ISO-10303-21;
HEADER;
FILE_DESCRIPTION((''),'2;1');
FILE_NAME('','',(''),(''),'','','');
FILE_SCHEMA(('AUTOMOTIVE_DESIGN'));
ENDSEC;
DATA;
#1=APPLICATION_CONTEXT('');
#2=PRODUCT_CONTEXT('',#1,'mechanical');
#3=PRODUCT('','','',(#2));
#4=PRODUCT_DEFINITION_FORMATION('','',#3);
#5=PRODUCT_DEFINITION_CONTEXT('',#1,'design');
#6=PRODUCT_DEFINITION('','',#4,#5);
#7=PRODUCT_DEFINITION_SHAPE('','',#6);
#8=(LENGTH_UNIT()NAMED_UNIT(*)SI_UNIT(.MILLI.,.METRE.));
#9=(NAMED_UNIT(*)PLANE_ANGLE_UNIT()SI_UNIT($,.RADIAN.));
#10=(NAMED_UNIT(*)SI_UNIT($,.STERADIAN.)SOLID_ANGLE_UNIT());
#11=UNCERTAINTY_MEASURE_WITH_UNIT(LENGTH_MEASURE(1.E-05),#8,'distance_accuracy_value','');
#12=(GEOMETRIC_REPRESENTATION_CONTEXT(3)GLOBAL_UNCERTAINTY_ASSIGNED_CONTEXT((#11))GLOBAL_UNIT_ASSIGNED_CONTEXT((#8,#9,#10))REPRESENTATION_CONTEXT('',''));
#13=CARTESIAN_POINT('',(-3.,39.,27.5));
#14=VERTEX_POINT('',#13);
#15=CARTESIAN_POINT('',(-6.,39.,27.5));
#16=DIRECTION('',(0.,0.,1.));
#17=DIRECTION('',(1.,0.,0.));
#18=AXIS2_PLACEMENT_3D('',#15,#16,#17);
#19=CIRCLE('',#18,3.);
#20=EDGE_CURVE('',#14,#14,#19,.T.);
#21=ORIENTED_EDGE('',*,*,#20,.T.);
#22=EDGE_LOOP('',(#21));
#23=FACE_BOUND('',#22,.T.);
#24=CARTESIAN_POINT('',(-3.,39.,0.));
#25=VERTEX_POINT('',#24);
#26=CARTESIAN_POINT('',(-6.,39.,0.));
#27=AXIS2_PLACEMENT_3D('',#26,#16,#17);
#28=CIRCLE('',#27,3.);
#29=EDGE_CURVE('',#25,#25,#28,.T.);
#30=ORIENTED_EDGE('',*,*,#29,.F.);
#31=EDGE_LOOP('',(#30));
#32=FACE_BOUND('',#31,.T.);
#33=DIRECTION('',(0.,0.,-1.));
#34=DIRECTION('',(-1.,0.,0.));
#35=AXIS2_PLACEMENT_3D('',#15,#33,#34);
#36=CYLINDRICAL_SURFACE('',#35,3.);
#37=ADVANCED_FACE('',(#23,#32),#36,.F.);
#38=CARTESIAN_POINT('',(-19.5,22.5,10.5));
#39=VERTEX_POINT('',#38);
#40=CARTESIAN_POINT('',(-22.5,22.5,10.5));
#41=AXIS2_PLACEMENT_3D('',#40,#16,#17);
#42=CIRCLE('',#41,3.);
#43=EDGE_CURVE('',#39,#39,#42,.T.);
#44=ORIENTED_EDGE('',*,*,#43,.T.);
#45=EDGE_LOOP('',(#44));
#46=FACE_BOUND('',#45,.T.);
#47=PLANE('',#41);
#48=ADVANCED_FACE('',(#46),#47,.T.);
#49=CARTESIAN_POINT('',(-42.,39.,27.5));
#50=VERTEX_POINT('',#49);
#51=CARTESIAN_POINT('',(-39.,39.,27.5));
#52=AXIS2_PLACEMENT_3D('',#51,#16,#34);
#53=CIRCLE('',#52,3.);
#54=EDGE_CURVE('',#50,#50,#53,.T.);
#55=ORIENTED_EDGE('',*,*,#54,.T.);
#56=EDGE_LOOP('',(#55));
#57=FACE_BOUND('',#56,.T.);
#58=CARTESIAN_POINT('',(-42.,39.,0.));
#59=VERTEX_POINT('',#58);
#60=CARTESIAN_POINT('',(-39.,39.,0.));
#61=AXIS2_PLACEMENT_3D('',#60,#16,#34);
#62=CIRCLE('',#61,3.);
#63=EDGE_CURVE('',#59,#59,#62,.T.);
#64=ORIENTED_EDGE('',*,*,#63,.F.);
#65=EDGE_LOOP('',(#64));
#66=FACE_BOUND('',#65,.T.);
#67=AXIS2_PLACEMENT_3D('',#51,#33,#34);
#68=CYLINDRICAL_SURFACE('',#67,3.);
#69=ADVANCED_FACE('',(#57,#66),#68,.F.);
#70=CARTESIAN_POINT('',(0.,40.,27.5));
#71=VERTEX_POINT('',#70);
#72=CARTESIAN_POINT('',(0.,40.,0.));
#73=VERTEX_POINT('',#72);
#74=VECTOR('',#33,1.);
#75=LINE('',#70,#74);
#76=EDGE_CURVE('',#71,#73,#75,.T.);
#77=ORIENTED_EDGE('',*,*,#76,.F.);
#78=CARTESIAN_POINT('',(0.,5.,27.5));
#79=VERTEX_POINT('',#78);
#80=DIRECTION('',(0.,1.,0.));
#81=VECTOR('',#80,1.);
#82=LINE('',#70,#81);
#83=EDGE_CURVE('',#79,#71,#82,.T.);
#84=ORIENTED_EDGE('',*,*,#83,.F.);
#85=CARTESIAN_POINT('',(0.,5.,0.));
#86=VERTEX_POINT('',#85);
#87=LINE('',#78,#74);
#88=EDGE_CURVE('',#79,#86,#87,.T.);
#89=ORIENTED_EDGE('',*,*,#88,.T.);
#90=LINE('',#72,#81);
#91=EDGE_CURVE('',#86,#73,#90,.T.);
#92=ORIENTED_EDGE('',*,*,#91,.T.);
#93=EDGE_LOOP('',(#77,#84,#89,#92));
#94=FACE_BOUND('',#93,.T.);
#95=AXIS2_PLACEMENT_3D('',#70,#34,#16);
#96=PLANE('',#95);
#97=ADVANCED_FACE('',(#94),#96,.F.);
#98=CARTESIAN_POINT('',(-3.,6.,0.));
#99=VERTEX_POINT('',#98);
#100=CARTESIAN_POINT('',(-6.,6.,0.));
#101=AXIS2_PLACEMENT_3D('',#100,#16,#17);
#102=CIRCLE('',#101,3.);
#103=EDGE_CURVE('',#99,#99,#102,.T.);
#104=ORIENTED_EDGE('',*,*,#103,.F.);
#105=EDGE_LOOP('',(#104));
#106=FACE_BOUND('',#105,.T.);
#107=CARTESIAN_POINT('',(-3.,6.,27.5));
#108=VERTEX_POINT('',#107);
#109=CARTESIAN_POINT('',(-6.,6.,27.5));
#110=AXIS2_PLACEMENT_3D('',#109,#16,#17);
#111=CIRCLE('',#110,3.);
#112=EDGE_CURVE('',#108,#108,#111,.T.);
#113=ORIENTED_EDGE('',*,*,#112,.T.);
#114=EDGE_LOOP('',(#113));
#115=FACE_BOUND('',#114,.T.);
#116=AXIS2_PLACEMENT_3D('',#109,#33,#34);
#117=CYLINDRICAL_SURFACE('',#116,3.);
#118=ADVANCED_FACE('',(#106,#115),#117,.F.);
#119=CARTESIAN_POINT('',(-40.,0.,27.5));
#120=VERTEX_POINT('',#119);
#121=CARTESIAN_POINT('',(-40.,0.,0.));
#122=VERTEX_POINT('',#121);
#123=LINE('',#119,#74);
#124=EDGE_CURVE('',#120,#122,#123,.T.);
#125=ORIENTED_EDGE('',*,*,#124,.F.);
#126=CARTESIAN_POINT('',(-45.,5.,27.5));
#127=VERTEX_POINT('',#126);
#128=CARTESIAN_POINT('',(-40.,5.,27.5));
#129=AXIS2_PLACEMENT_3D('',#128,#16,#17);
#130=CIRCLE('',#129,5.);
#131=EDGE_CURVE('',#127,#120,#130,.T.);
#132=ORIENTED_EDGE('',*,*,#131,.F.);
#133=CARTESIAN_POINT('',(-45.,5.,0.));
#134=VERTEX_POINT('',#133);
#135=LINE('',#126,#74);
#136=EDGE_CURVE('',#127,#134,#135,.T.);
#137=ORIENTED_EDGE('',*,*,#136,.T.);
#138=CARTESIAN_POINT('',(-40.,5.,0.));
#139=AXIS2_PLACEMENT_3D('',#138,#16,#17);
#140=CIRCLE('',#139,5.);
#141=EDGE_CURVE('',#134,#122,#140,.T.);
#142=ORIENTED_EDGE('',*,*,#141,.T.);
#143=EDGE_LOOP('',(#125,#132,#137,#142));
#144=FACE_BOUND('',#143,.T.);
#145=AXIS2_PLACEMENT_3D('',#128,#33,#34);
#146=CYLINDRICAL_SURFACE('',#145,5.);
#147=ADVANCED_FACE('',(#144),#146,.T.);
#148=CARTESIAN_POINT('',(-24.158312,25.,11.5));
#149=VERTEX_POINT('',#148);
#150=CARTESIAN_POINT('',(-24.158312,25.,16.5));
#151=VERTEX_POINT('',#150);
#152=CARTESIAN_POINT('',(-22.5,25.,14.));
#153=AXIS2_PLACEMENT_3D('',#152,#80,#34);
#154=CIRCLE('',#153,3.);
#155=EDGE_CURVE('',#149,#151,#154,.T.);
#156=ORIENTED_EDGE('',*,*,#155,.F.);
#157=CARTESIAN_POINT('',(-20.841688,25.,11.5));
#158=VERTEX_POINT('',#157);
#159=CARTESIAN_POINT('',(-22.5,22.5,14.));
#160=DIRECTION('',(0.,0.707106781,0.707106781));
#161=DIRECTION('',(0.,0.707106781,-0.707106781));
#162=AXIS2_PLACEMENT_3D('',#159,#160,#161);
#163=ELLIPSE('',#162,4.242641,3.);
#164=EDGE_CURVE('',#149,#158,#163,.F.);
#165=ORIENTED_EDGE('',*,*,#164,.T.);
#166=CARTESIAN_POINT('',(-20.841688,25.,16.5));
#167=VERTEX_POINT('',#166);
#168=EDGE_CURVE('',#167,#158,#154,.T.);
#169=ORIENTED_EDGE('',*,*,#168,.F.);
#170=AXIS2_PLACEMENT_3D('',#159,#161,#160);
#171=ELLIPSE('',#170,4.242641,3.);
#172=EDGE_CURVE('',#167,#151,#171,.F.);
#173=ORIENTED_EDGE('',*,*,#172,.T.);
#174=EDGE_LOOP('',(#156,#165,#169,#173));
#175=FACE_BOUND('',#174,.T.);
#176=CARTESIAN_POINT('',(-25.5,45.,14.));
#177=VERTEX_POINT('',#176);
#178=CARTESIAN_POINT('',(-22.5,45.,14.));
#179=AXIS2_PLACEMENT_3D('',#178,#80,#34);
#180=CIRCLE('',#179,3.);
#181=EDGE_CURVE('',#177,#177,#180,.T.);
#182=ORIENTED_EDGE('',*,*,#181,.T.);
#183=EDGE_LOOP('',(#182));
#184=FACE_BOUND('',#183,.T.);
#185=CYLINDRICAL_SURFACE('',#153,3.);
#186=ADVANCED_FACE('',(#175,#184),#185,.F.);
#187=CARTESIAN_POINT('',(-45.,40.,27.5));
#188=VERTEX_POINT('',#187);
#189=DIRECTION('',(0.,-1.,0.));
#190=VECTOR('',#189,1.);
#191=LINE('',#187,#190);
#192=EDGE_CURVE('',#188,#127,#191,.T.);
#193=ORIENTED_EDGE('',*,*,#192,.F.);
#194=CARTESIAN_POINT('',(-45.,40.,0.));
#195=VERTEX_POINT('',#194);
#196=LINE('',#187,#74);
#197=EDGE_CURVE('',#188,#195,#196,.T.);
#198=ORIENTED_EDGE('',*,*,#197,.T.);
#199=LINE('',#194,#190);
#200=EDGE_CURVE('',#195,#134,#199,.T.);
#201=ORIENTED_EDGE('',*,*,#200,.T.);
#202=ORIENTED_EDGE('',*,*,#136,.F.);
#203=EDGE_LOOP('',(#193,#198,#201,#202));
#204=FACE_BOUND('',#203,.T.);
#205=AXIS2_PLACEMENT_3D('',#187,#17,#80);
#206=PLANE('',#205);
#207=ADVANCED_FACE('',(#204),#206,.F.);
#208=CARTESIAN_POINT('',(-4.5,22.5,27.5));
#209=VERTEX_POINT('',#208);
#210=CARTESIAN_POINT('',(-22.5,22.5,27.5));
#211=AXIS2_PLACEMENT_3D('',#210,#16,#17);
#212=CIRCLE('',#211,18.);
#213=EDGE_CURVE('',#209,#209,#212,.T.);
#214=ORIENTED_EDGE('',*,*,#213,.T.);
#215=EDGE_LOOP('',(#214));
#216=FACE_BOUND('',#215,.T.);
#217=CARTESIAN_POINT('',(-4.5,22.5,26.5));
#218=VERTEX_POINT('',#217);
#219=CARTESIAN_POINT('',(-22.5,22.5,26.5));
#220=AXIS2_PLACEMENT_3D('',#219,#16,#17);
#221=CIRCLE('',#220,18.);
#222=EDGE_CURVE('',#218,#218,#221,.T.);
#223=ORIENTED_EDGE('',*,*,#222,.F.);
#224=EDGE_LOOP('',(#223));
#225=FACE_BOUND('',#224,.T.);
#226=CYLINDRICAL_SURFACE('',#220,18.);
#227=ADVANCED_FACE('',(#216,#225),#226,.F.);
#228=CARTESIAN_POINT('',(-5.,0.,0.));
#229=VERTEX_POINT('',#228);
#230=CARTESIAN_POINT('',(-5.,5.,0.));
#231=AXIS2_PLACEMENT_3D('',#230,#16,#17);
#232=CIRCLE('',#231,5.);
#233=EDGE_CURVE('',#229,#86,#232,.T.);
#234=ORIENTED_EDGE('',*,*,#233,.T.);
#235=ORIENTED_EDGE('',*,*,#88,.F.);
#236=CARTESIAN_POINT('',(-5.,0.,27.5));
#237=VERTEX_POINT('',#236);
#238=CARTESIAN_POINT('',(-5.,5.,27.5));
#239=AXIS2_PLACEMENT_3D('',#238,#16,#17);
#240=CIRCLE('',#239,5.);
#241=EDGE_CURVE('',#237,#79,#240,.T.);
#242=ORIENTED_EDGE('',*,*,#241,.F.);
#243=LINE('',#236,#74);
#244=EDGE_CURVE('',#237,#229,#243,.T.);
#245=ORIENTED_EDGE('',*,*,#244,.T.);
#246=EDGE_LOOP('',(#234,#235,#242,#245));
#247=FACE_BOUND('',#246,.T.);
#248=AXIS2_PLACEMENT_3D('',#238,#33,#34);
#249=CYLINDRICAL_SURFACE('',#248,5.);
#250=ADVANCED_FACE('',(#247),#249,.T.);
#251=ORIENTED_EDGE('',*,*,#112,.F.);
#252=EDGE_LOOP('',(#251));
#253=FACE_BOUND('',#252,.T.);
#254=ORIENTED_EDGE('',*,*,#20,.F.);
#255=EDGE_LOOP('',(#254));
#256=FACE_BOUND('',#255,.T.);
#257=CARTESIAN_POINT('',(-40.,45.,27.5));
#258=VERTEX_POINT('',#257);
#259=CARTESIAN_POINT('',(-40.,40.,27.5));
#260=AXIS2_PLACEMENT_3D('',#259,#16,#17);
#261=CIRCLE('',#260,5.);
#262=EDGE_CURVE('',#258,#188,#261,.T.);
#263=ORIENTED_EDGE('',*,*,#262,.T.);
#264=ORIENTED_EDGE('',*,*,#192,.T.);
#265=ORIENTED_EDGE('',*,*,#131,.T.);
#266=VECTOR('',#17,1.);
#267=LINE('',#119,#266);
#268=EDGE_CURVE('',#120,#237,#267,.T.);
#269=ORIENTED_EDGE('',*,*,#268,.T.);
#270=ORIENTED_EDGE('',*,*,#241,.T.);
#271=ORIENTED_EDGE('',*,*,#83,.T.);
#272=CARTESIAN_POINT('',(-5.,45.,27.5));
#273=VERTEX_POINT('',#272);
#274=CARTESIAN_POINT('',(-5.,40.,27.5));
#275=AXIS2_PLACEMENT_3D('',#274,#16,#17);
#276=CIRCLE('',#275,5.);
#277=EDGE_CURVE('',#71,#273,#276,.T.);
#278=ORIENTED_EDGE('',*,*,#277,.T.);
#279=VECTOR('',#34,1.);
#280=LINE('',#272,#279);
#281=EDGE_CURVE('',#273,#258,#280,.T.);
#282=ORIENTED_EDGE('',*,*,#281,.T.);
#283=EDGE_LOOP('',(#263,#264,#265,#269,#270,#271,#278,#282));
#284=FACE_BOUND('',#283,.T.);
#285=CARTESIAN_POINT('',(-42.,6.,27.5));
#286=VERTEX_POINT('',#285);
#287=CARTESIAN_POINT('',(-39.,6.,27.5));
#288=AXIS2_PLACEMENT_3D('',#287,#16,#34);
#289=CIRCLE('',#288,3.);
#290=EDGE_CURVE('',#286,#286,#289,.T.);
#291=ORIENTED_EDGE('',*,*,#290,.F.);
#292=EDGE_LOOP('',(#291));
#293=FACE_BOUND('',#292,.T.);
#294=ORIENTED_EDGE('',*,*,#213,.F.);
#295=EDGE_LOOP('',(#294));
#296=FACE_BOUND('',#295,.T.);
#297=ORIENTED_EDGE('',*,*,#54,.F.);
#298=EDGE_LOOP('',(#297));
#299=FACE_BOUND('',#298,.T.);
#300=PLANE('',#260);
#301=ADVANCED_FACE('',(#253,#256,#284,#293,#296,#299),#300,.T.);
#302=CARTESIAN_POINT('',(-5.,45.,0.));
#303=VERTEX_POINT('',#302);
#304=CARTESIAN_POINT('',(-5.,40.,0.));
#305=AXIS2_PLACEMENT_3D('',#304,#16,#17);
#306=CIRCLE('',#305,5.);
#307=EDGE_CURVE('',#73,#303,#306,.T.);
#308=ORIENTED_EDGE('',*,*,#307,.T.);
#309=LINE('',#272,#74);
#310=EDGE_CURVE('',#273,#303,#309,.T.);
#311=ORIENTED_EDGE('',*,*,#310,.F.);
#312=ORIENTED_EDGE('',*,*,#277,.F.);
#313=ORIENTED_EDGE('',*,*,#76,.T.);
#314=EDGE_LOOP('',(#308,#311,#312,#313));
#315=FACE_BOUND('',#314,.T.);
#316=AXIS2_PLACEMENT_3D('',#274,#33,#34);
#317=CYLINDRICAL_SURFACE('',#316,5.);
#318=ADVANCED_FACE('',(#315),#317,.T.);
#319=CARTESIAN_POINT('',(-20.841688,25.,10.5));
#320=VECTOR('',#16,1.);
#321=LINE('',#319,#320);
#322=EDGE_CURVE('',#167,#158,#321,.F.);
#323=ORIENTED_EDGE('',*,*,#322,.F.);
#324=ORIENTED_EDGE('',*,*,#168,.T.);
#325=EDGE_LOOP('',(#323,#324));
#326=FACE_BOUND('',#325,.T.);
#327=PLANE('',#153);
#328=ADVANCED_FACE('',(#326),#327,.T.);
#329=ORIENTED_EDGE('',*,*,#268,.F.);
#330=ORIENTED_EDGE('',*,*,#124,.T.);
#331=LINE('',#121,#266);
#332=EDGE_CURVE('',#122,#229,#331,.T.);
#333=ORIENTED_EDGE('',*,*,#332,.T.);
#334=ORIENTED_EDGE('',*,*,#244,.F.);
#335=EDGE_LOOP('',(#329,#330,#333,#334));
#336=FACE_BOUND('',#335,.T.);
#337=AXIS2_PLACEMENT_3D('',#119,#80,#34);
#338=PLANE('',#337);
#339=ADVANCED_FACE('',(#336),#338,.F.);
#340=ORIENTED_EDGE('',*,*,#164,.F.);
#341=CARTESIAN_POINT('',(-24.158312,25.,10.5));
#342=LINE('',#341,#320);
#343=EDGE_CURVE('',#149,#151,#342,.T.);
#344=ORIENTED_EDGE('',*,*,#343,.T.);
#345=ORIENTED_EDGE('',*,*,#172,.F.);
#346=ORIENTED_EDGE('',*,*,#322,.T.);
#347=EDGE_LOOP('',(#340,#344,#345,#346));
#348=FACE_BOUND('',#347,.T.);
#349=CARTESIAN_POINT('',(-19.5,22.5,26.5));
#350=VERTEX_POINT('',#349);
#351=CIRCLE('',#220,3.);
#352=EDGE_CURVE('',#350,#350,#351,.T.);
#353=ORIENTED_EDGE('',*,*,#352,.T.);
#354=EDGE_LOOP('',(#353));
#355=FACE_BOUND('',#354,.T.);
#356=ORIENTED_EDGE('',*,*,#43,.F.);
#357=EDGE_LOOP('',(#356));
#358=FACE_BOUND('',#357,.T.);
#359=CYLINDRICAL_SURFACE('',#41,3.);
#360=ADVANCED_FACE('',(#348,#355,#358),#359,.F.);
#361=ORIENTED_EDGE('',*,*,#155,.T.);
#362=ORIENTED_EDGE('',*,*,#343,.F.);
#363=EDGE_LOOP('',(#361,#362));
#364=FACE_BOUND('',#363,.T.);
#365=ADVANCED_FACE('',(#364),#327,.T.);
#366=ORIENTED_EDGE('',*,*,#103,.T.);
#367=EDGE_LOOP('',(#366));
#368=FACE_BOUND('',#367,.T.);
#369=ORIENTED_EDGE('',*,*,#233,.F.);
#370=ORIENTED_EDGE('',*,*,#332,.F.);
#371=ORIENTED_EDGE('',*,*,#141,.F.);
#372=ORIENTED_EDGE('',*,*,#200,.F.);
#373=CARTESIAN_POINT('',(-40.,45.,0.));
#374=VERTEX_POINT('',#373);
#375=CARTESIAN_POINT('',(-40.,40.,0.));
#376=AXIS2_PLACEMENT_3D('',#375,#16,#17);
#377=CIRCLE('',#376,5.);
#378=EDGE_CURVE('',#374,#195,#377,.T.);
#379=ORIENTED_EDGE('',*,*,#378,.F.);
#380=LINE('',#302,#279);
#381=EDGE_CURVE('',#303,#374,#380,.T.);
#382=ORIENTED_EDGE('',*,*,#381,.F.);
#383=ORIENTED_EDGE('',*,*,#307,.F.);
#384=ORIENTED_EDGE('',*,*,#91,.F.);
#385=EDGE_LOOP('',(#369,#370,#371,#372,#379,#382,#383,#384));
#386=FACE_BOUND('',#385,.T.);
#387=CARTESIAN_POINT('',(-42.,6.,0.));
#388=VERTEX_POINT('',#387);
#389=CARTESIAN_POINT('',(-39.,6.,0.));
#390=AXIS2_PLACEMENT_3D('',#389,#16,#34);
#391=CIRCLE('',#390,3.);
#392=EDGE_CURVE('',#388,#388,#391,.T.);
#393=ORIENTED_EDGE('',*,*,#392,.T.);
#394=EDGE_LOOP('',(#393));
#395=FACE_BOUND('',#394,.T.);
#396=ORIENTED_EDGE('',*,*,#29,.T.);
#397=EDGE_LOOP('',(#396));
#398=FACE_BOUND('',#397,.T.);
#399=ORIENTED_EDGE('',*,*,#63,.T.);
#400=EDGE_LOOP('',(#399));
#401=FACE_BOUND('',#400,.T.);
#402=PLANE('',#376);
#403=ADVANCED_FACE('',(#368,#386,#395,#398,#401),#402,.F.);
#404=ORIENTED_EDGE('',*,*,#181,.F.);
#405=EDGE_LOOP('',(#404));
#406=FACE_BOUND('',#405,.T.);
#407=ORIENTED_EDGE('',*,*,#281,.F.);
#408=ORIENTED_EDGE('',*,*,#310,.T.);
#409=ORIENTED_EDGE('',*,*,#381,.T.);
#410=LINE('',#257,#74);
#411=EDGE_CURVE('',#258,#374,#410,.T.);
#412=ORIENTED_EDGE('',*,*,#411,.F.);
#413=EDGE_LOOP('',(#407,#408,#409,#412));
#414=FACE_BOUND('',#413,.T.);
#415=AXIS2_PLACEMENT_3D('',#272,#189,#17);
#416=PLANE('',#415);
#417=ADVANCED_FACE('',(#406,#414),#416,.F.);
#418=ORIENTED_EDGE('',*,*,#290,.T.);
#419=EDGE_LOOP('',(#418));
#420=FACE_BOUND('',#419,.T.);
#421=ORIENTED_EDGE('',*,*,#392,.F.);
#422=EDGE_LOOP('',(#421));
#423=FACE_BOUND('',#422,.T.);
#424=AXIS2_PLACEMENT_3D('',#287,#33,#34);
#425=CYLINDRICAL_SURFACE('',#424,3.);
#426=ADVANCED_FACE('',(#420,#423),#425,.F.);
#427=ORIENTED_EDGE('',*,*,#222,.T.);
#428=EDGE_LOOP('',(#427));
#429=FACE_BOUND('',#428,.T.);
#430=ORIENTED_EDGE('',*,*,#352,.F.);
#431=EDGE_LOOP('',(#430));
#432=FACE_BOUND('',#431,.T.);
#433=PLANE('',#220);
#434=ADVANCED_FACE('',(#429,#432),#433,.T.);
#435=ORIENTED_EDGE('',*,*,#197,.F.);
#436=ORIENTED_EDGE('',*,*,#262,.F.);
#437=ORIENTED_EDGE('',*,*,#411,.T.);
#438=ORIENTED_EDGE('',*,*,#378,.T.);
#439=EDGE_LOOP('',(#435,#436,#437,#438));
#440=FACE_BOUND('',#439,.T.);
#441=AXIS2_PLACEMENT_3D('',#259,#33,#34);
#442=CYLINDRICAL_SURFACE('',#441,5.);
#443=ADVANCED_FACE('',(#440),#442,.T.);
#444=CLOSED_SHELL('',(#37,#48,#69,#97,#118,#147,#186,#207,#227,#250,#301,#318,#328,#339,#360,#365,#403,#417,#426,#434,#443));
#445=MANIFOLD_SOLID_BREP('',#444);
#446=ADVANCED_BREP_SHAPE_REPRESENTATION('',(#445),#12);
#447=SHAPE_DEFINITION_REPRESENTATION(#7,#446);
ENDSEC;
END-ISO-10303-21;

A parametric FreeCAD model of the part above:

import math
import FreeCAD as App
import Part
import Sketcher

doc = App.newDocument("Part")
body = doc.addObject("PartDesign::Body", "Body")

# Sketch on XY plane
sketch1 = body.newObject("Sketcher::SketchObject", "Sketch")
sketch1.AttachmentSupport = (doc.getObject("XY_Plane"), [""])
sketch1.MapMode = "FlatFace"
sketch1.addGeometry([
    Part.LineSegment(App.Vector(0, 5, 0), App.Vector(0, 40, 0)),  # 0
    Part.ArcOfCircle(Part.Circle(App.Vector(-5, 40, 0), App.Vector(0, 0, 1), 5), math.radians(0), math.radians(90)),  # 1
    Part.LineSegment(App.Vector(-5, 45, 0), App.Vector(-40, 45, 0)),  # 2
    Part.ArcOfCircle(Part.Circle(App.Vector(-40, 40, 0), App.Vector(0, 0, 1), 5), math.radians(90), math.radians(180)),  # 3
    Part.LineSegment(App.Vector(-45, 40, 0), App.Vector(-45, 5, 0)),  # 4
    Part.ArcOfCircle(Part.Circle(App.Vector(-40, 5, 0), App.Vector(0, 0, 1), 5), math.radians(180), math.radians(270)),  # 5
    Part.LineSegment(App.Vector(-40, 0, 0), App.Vector(-5, 0, 0)),  # 6
    Part.ArcOfCircle(Part.Circle(App.Vector(-5, 5, 0), App.Vector(0, 0, 1), 5), math.radians(-90), math.radians(0)),  # 7
    Part.Circle(App.Vector(-6, 6, 0), App.Vector(0, 0, 1), 3),  # 8
    Part.Circle(App.Vector(-39, 6, 0), App.Vector(0, 0, 1), 3),  # 9
    Part.Circle(App.Vector(-6, 39, 0), App.Vector(0, 0, 1), 3),  # 10
    Part.Circle(App.Vector(-39, 39, 0), App.Vector(0, 0, 1), 3),  # 11
], False)
sketch1.addConstraint([
    Sketcher.Constraint("Tangent", 0, 2, 1, 1),
    Sketcher.Constraint("Tangent", 1, 2, 2, 1),
    Sketcher.Constraint("Tangent", 2, 2, 3, 1),
    Sketcher.Constraint("Tangent", 3, 2, 4, 1),
    Sketcher.Constraint("Tangent", 4, 2, 5, 1),
    Sketcher.Constraint("Tangent", 5, 2, 6, 1),
    Sketcher.Constraint("Tangent", 6, 2, 7, 1),
    Sketcher.Constraint("Tangent", 7, 2, 0, 1),
    Sketcher.Constraint("Vertical", 0),
    Sketcher.Constraint("Horizontal", 2),
    Sketcher.Constraint("Vertical", 4),
    Sketcher.Constraint("Horizontal", 6),
    Sketcher.Constraint("Equal", 1, 3),
    Sketcher.Constraint("Equal", 3, 5),
    Sketcher.Constraint("Equal", 5, 7),
    Sketcher.Constraint("Equal", 8, 9),
    Sketcher.Constraint("Equal", 9, 10),
    Sketcher.Constraint("Equal", 10, 11),
    Sketcher.Constraint("PointOnObject", 0, 2, -2),
    Sketcher.Constraint("PointOnObject", 5, 2, -1),
    Sketcher.Constraint("Horizontal", 8, 3, 9, 3),
    Sketcher.Constraint("Horizontal", 10, 3, 11, 3),
    Sketcher.Constraint("Vertical", 8, 3, 10, 3),
    Sketcher.Constraint("Vertical", 9, 3, 11, 3),
    Sketcher.Constraint("Equal", 6, 0),
    Sketcher.Constraint("Diameter", 8, 6.0),
    Sketcher.Constraint("Radius", 1, 5.0),
    Sketcher.Constraint("DistanceX", 2, 2, 2, 1, 35.0),
    Sketcher.Constraint("DistanceX", 8, 3, -1, 1, 6.0),
    Sketcher.Constraint("DistanceY", -1, 1, 8, 3, 6.0),
    Sketcher.Constraint("DistanceX", 9, 3, -1, 1, 39.0),
    Sketcher.Constraint("DistanceY", -1, 1, 10, 3, 39.0),
])
pad1 = body.newObject("PartDesign::Pad", "Pad")
pad1.Profile = sketch1
pad1.Length = 27.5

# Sketch on XY plane
sketch2 = body.newObject("Sketcher::SketchObject", "Sketch001")
sketch2.AttachmentSupport = (doc.getObject("XY_Plane"), [""])
sketch2.MapMode = "FlatFace"
sketch2.AttachmentOffset = App.Placement(App.Vector(0, 0, 27.5), App.Rotation())
sketch2.addGeometry(Part.Circle(App.Vector(-22, 22, 0), App.Vector(0, 0, 1), 18), False)
sketch2.addConstraint([
    Sketcher.Constraint("Diameter", 0, 36.0),
    Sketcher.Constraint("DistanceX", 0, 3, -1, 1, 22.5),
    Sketcher.Constraint("DistanceY", -1, 1, 0, 3, 22.5),
])
pocket1 = body.newObject("PartDesign::Pocket", "Pocket")
pocket1.Profile = sketch2
pocket1.Length = 1

# Sketch on XZ plane
sketch3 = body.newObject("Sketcher::SketchObject", "Sketch002")
sketch3.AttachmentSupport = (doc.getObject("XZ_Plane"), [""])
sketch3.MapMode = "FlatFace"
sketch3.AttachmentOffset = App.Placement(App.Vector(0, 0, -45), App.Rotation())
sketch3.addGeometry(Part.Circle(App.Vector(-22.5, 14, 0), App.Vector(0, 0, 1), 3), False)
sketch3.addConstraint([
    Sketcher.Constraint("Diameter", 0, 6.0),
    Sketcher.Constraint("DistanceY", -1, 1, 0, 3, 14.0),
    Sketcher.Constraint("DistanceX", 0, 3, -1, 1, 22.5),
])
pocket2 = body.newObject("PartDesign::Pocket", "Pocket001")
pocket2.Profile = sketch3
pocket2.Length = 20
pocket2.Reversed = True

# Sketch on XY plane
sketch4 = body.newObject("Sketcher::SketchObject", "Sketch003")
sketch4.AttachmentSupport = (doc.getObject("XY_Plane"), [""])
sketch4.MapMode = "FlatFace"
sketch4.AttachmentOffset = App.Placement(App.Vector(0, 0, 26.5), App.Rotation())
sketch4.addGeometry(Part.Circle(App.Vector(-22.5, 22.5, 0), App.Vector(0, 0, 1), 3), False)
sketch4.addConstraint([
    Sketcher.Constraint("Diameter", 0, 6.0),
    Sketcher.Constraint("DistanceX", 0, 3, -1, 1, 22.5),
    Sketcher.Constraint("DistanceY", -1, 1, 0, 3, 22.5),
])
pocket3 = body.newObject("PartDesign::Pocket", "Pocket002")
pocket3.Profile = sketch4
pocket3.Length = 16

doc.recompute()
